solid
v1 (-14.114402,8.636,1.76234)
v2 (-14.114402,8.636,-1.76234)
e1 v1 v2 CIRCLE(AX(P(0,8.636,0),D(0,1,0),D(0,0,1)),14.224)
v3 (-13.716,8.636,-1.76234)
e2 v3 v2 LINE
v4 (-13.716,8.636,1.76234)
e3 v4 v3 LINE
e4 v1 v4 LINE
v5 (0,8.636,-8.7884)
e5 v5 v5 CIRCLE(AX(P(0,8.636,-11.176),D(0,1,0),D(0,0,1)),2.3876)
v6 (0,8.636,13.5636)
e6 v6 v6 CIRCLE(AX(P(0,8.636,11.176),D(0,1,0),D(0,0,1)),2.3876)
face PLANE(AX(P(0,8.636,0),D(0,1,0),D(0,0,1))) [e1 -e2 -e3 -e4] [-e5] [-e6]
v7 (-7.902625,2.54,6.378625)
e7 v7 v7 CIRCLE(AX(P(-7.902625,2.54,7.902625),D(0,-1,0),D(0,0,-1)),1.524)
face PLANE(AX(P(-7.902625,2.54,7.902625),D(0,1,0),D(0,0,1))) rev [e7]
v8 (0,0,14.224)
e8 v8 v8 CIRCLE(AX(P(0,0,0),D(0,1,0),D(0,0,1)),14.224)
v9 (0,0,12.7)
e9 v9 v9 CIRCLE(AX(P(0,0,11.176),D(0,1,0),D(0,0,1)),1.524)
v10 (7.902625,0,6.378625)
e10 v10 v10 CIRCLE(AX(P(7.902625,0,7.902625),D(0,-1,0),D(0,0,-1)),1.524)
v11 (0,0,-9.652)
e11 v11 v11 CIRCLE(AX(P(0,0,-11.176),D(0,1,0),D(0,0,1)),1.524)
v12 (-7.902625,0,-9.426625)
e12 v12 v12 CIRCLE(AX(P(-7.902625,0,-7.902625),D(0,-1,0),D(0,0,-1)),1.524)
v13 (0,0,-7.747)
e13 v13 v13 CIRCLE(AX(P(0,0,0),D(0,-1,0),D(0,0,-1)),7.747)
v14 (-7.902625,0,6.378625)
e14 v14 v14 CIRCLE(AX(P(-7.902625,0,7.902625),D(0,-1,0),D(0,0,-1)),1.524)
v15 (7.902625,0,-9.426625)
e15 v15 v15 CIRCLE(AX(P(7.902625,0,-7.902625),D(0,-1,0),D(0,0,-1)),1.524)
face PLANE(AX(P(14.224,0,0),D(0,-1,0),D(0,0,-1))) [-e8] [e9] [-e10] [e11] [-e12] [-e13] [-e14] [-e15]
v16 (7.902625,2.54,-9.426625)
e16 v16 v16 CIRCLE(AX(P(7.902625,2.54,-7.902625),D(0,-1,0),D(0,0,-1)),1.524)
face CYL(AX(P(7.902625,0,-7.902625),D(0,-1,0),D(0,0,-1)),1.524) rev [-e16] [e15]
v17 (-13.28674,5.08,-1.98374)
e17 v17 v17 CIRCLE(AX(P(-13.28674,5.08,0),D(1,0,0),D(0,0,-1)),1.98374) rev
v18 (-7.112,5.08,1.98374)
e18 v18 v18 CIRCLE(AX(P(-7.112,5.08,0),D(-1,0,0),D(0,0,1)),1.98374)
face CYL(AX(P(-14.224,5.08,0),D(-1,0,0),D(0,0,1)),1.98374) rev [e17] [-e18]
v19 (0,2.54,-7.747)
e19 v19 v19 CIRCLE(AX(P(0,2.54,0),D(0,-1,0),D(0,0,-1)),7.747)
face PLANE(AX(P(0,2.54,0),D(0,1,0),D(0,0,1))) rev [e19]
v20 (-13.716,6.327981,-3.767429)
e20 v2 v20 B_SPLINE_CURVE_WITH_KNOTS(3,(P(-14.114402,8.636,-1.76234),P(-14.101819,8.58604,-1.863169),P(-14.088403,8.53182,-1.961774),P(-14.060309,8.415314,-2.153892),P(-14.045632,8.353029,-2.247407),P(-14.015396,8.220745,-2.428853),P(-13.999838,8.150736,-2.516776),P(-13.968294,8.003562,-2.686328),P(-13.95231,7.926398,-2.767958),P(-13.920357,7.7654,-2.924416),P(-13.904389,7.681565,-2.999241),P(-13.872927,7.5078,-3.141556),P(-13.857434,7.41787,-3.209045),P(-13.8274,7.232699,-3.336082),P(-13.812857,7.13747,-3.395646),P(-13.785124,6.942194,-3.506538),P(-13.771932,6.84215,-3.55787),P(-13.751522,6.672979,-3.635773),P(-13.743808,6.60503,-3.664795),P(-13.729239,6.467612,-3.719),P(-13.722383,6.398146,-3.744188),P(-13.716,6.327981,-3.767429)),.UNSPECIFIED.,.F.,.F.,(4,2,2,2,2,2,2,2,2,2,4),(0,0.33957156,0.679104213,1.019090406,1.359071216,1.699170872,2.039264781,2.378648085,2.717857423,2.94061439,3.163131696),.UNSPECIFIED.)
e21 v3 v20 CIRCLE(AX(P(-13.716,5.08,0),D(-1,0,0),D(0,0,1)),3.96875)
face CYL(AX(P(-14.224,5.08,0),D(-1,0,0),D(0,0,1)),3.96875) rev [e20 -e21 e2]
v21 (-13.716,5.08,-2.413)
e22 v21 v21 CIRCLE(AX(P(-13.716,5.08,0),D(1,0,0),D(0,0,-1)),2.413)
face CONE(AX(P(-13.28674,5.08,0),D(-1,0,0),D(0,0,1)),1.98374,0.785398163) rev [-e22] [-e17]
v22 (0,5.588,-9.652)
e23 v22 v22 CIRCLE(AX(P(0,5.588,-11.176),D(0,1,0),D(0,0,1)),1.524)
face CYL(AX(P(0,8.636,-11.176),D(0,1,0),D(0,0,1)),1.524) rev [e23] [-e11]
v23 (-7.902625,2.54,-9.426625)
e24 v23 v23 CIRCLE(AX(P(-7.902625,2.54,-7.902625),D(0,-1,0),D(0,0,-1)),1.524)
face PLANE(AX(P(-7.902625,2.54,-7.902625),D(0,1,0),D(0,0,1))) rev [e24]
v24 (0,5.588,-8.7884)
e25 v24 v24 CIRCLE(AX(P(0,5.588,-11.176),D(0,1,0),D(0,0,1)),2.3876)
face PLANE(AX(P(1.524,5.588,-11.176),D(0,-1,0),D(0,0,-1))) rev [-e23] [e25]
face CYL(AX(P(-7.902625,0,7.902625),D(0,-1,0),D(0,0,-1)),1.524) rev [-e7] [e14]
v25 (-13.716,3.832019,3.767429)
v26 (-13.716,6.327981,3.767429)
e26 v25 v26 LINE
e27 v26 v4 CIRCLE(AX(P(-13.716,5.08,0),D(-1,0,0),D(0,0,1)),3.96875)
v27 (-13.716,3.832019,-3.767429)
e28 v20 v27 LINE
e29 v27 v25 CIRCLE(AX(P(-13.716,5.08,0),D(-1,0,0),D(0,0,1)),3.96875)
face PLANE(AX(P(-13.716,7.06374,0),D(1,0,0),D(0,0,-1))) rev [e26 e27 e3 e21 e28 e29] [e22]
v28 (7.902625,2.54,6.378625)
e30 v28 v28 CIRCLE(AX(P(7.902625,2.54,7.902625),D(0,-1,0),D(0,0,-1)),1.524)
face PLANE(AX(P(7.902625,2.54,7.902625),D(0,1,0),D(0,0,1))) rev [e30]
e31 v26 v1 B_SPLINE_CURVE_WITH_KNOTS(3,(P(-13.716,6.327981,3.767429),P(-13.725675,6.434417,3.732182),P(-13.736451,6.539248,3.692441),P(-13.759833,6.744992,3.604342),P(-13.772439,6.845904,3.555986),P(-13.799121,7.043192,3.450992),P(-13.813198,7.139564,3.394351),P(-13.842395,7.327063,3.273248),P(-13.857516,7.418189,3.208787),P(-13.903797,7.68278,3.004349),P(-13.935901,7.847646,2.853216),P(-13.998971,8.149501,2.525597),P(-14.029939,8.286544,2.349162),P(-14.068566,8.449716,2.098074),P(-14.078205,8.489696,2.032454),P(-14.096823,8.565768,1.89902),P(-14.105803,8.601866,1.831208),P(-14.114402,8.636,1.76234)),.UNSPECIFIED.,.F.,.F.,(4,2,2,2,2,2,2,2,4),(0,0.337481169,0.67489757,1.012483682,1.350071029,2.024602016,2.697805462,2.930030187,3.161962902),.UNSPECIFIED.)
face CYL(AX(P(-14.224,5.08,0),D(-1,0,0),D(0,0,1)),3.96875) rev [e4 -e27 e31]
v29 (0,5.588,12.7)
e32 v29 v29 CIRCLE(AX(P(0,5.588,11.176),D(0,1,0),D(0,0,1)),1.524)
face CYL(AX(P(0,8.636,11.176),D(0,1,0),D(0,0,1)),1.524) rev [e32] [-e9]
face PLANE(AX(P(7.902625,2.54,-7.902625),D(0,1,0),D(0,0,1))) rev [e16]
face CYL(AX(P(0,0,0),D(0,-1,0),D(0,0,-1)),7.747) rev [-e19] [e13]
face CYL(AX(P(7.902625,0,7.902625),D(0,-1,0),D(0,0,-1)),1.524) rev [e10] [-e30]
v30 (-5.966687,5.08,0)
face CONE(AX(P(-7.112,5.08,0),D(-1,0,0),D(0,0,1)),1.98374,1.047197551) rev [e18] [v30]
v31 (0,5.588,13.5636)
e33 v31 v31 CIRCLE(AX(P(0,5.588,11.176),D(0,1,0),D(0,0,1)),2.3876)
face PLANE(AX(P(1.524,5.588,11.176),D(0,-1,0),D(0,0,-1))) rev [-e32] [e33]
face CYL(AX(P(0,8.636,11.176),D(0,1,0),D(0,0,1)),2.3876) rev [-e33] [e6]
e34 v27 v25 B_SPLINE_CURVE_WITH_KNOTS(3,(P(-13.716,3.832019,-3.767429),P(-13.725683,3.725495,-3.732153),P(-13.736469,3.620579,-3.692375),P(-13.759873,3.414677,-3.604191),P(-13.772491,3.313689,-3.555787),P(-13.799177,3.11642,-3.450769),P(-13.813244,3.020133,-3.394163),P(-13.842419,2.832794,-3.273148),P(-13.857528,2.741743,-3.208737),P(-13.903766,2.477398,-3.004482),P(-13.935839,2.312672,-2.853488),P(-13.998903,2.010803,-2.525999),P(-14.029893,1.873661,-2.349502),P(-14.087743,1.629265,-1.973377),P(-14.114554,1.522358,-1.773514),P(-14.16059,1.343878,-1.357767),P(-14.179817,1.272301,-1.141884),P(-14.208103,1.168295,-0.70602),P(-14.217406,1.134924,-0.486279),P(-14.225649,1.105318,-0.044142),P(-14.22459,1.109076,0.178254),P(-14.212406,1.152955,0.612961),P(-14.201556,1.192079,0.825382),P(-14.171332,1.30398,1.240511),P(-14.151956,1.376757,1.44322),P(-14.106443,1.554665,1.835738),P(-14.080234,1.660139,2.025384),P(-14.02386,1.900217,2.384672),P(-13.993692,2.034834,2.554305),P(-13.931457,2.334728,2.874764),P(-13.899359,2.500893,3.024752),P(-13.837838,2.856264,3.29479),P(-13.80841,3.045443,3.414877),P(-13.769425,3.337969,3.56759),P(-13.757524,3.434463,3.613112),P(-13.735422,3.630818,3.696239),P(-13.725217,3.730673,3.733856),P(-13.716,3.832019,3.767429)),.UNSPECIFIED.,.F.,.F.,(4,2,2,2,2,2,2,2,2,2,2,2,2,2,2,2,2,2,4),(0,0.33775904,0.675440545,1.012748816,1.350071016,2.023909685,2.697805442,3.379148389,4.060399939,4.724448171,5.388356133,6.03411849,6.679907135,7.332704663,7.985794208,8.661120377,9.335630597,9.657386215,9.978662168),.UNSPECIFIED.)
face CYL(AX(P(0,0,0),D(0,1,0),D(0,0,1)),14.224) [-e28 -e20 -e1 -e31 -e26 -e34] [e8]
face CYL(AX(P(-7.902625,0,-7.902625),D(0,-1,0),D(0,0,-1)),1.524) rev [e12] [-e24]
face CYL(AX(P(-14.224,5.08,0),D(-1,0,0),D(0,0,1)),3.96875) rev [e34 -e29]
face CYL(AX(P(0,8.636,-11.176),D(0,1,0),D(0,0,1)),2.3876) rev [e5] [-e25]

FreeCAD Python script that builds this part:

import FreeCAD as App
import Part
import Sketcher
Q = App.Units.Quantity


def edges_at(feature, points):
    """Names of the edges that pass closest to the given points."""
    edges = feature.Shape.Edges
    near = lambda p: min(range(len(edges)), key=lambda i: edges[i].distToShape(Part.Vertex(*p))[0])
    return sorted({f"Edge{near(p) + 1}" for p in points})


def add_polygon(sketch, points):
    """Adds a closed chain of lines whose ends are joined by coincident constraints."""
    first, n = sketch.GeometryCount, len(points)
    for a, b in zip(points, points[1:] + points[:1]):
        sketch.addGeometry(Part.LineSegment(App.Vector(*a, 0), App.Vector(*b, 0)), False)
    for i in range(n):
        sketch.addConstraint(Sketcher.Constraint("Coincident", first + i, 2, first + (i + 1) % n, 1))

doc = App.newDocument("Part")
params = doc.addObject("Spreadsheet::Sheet", "Params")
for row, (alias, value) in enumerate([
    ("sketch1_width", "0.56 in"),
    ("sketch1_height", "0.34 in"),
    ("revolution_angle", "360 deg"),
    ("sketch2_diameter", "0.12 in"),
    ("hole_diameter", "0.12 in"),
    ("hole_cbore_diameter", "0.188 in"),
    ("hole_cbore_depth", "0.12 in"),
    ("sketch3_diameter", "0.12 in"),
    ("hole2_diameter", "0.12 in"),
    ("hole2_depth", "0.1 in"),
    ("sketch4_diameter", "0.61 in"),
    ("hole3_diameter", "0.61 in"),
    ("hole3_depth", "0.1 in"),
    ("hole4_diameter", "0.1562 in"),
    ("hole4_depth", "0.28 in"),
    ("hole4_cbore_diameter", "0.3125 in"),
    ("hole4_cbore_depth", "0.02 in"),
    ("chamfer_size", "0.0169 in"),
], start=1):
    params.set(f"A{row}", alias)
    params.set(f"B{row}", "=" + value)
    params.setAlias(f"B{row}", alias)

body = doc.addObject("PartDesign::Body", "Body")

sketch1 = body.newObject("Sketcher::SketchObject", "Sketch")
sketch1.AttachmentSupport = (doc.getObject("XY_Plane"), [""])
sketch1.MapMode = "FlatFace"
add_polygon(sketch1, [(14.224, 8.636), (14.224, 0), (0, 0), (0, 8.636)])
sketch1.addConstraint([
    Sketcher.Constraint("Vertical", 0),
    Sketcher.Constraint("Horizontal", 1),
    Sketcher.Constraint("Vertical", 2),
    Sketcher.Constraint("Horizontal", 3),
    Sketcher.Constraint("Coincident", 1, 2, -1, 1),
    Sketcher.Constraint("DistanceX", 1, 2, 1, 1, Q("0.56 in")),
    Sketcher.Constraint("DistanceY", 0, 2, 0, 1, Q("0.34 in")),
])
sketch1.setExpression("Constraints[9]", "Params.sketch1_width")
sketch1.setExpression("Constraints[10]", "Params.sketch1_height")
revolution = body.newObject("PartDesign::Revolution", "Revolution")
revolution.Profile = sketch1
revolution.ReferenceAxis = (sketch1, ["V_Axis"])
revolution.setExpression("Angle", "Params.revolution_angle")

sketch2 = body.newObject("Sketcher::SketchObject", "Sketch001")
sketch2.AttachmentSupport = (doc.getObject("XZ_Plane"), [""])
sketch2.MapMode = "FlatFace"
sketch2.AttachmentOffset = App.Placement(App.Vector(0, 0, -0.34 * 25.4), App.Rotation())
sketch2.addGeometry([
    Part.Circle(App.Vector(0, 11.176, 0), App.Vector(0, 0, 1), 1.524),
    Part.Circle(App.Vector(0, -11.176, 0), App.Vector(0, 0, 1), 1.524),
], False)
sketch2.addConstraint([
    Sketcher.Constraint("Equal", 0, 1),
    Sketcher.Constraint("Symmetric", 0, 3, 1, 3, -1, 1),
    Sketcher.Constraint("PointOnObject", 0, 3, -2),
    Sketcher.Constraint("Diameter", 0, Q("0.12 in")),
    Sketcher.Constraint("DistanceY", -1, 1, 0, 3, Q("0.44 in")),
])
sketch2.setExpression("Constraints[3]", "Params.sketch2_diameter")
doc.recompute()
hole = body.newObject("PartDesign::Hole", "Hole")
hole.Profile = sketch2
hole.ThreadType = "None"
hole.setExpression("Diameter", "Params.hole_diameter")
hole.DepthType = "ThroughAll"
hole.HoleCutType = "Counterbore"
hole.setExpression("HoleCutDiameter", "Params.hole_cbore_diameter")
hole.setExpression("HoleCutDepth", "Params.hole_cbore_depth")
hole.Reversed = True

sketch3 = body.newObject("Sketcher::SketchObject", "Sketch002")
sketch3.AttachmentSupport = (doc.getObject("XZ_Plane"), [""])
sketch3.MapMode = "FlatFace"
sketch3.addGeometry([
    Part.Circle(App.Vector(7.902625, -7.902625, 0), App.Vector(0, 0, 1), 1.524),
    Part.Circle(App.Vector(-7.902625, 7.902625, 0), App.Vector(0, 0, 1), 1.524),
    Part.Circle(App.Vector(7.902625, 7.902625, 0), App.Vector(0, 0, 1), 1.524),
    Part.Circle(App.Vector(-7.902625, -7.902625, 0), App.Vector(0, 0, 1), 1.524),
], False)
sketch3.addConstraint([
    Sketcher.Constraint("Equal", 0, 1),
    Sketcher.Constraint("Equal", 1, 2),
    Sketcher.Constraint("Equal", 2, 3),
    Sketcher.Constraint("Symmetric", 0, 3, 1, 3, -1, 1),
    Sketcher.Constraint("Symmetric", 2, 3, 3, 3, -1, 1),
    Sketcher.Constraint("Symmetric", 1, 3, 2, 3, -2),
    Sketcher.Constraint("Diameter", 0, Q("0.12 in")),
    Sketcher.Constraint("DistanceX", 1, 3, 0, 3, 15.805251),
    Sketcher.Constraint("DistanceY", 0, 3, 1, 3, 15.805251),
])
sketch3.setExpression("Constraints[6]", "Params.sketch3_diameter")
doc.recompute()
hole2 = body.newObject("PartDesign::Hole", "Hole001")
hole2.Profile = sketch3
hole2.ThreadType = "None"
hole2.setExpression("Diameter", "Params.hole2_diameter")
hole2.DepthType = "Dimension"
hole2.setExpression("Depth", "Params.hole2_depth")
hole2.DrillPoint = "Flat"

sketch4 = body.newObject("Sketcher::SketchObject", "Sketch003")
sketch4.AttachmentSupport = (doc.getObject("XZ_Plane"), [""])
sketch4.MapMode = "FlatFace"
sketch4.addGeometry(Part.Circle(App.Vector(0, 0, 0), App.Vector(0, 0, 1), 7.747), False)
sketch4.addConstraint([
    Sketcher.Constraint("Coincident", 0, 3, -1, 1),
    Sketcher.Constraint("Diameter", 0, Q("0.61 in")),
])
sketch4.setExpression("Constraints[1]", "Params.sketch4_diameter")
doc.recompute()
hole3 = body.newObject("PartDesign::Hole", "Hole002")
hole3.Profile = sketch4
hole3.ThreadType = "None"
hole3.setExpression("Diameter", "Params.hole3_diameter")
hole3.DepthType = "Dimension"
hole3.setExpression("Depth", "Params.hole3_depth")
hole3.DrillPoint = "Flat"

sketch5 = body.newObject("Sketcher::SketchObject", "Sketch004")
sketch5.AttachmentSupport = (doc.getObject("YZ_Plane"), [""])
sketch5.MapMode = "FlatFace"
sketch5.AttachmentOffset = App.Placement(App.Vector(0, 0, -0.56 * 25.4), App.Rotation())
sketch5.addGeometry(Part.Circle(App.Vector(5.08, 0, 0), App.Vector(0, 0, 1), 1.98374), False)
sketch5.addConstraint([
    Sketcher.Constraint("PointOnObject", 0, 3, -1),
    Sketcher.Constraint("Diameter", 0, Q("0.1562 in")),
    Sketcher.Constraint("DistanceX", -1, 1, 0, 3, Q("0.2 in")),
])
doc.recompute()
hole4 = body.newObject("PartDesign::Hole", "Hole003")
hole4.Profile = sketch5
hole4.ThreadType = "None"
hole4.setExpression("Diameter", "Params.hole4_diameter")
hole4.DepthType = "Dimension"
hole4.setExpression("Depth", "Params.hole4_depth")
hole4.DrillPoint = "Angled"
hole4.DrillPointAngle = 120
hole4.HoleCutType = "Counterbore"
hole4.setExpression("HoleCutDiameter", "Params.hole4_cbore_diameter")
hole4.setExpression("HoleCutDepth", "Params.hole4_cbore_depth")
hole4.Reversed = True
doc.recompute()

chamfer = body.newObject("PartDesign::Chamfer", "Chamfer")
chamfer.Base = (hole4, edges_at(hole4, [(-13.716, 5.08, -1.984)]))
chamfer.setExpression("Size", "Params.chamfer_size")

doc.recompute()
